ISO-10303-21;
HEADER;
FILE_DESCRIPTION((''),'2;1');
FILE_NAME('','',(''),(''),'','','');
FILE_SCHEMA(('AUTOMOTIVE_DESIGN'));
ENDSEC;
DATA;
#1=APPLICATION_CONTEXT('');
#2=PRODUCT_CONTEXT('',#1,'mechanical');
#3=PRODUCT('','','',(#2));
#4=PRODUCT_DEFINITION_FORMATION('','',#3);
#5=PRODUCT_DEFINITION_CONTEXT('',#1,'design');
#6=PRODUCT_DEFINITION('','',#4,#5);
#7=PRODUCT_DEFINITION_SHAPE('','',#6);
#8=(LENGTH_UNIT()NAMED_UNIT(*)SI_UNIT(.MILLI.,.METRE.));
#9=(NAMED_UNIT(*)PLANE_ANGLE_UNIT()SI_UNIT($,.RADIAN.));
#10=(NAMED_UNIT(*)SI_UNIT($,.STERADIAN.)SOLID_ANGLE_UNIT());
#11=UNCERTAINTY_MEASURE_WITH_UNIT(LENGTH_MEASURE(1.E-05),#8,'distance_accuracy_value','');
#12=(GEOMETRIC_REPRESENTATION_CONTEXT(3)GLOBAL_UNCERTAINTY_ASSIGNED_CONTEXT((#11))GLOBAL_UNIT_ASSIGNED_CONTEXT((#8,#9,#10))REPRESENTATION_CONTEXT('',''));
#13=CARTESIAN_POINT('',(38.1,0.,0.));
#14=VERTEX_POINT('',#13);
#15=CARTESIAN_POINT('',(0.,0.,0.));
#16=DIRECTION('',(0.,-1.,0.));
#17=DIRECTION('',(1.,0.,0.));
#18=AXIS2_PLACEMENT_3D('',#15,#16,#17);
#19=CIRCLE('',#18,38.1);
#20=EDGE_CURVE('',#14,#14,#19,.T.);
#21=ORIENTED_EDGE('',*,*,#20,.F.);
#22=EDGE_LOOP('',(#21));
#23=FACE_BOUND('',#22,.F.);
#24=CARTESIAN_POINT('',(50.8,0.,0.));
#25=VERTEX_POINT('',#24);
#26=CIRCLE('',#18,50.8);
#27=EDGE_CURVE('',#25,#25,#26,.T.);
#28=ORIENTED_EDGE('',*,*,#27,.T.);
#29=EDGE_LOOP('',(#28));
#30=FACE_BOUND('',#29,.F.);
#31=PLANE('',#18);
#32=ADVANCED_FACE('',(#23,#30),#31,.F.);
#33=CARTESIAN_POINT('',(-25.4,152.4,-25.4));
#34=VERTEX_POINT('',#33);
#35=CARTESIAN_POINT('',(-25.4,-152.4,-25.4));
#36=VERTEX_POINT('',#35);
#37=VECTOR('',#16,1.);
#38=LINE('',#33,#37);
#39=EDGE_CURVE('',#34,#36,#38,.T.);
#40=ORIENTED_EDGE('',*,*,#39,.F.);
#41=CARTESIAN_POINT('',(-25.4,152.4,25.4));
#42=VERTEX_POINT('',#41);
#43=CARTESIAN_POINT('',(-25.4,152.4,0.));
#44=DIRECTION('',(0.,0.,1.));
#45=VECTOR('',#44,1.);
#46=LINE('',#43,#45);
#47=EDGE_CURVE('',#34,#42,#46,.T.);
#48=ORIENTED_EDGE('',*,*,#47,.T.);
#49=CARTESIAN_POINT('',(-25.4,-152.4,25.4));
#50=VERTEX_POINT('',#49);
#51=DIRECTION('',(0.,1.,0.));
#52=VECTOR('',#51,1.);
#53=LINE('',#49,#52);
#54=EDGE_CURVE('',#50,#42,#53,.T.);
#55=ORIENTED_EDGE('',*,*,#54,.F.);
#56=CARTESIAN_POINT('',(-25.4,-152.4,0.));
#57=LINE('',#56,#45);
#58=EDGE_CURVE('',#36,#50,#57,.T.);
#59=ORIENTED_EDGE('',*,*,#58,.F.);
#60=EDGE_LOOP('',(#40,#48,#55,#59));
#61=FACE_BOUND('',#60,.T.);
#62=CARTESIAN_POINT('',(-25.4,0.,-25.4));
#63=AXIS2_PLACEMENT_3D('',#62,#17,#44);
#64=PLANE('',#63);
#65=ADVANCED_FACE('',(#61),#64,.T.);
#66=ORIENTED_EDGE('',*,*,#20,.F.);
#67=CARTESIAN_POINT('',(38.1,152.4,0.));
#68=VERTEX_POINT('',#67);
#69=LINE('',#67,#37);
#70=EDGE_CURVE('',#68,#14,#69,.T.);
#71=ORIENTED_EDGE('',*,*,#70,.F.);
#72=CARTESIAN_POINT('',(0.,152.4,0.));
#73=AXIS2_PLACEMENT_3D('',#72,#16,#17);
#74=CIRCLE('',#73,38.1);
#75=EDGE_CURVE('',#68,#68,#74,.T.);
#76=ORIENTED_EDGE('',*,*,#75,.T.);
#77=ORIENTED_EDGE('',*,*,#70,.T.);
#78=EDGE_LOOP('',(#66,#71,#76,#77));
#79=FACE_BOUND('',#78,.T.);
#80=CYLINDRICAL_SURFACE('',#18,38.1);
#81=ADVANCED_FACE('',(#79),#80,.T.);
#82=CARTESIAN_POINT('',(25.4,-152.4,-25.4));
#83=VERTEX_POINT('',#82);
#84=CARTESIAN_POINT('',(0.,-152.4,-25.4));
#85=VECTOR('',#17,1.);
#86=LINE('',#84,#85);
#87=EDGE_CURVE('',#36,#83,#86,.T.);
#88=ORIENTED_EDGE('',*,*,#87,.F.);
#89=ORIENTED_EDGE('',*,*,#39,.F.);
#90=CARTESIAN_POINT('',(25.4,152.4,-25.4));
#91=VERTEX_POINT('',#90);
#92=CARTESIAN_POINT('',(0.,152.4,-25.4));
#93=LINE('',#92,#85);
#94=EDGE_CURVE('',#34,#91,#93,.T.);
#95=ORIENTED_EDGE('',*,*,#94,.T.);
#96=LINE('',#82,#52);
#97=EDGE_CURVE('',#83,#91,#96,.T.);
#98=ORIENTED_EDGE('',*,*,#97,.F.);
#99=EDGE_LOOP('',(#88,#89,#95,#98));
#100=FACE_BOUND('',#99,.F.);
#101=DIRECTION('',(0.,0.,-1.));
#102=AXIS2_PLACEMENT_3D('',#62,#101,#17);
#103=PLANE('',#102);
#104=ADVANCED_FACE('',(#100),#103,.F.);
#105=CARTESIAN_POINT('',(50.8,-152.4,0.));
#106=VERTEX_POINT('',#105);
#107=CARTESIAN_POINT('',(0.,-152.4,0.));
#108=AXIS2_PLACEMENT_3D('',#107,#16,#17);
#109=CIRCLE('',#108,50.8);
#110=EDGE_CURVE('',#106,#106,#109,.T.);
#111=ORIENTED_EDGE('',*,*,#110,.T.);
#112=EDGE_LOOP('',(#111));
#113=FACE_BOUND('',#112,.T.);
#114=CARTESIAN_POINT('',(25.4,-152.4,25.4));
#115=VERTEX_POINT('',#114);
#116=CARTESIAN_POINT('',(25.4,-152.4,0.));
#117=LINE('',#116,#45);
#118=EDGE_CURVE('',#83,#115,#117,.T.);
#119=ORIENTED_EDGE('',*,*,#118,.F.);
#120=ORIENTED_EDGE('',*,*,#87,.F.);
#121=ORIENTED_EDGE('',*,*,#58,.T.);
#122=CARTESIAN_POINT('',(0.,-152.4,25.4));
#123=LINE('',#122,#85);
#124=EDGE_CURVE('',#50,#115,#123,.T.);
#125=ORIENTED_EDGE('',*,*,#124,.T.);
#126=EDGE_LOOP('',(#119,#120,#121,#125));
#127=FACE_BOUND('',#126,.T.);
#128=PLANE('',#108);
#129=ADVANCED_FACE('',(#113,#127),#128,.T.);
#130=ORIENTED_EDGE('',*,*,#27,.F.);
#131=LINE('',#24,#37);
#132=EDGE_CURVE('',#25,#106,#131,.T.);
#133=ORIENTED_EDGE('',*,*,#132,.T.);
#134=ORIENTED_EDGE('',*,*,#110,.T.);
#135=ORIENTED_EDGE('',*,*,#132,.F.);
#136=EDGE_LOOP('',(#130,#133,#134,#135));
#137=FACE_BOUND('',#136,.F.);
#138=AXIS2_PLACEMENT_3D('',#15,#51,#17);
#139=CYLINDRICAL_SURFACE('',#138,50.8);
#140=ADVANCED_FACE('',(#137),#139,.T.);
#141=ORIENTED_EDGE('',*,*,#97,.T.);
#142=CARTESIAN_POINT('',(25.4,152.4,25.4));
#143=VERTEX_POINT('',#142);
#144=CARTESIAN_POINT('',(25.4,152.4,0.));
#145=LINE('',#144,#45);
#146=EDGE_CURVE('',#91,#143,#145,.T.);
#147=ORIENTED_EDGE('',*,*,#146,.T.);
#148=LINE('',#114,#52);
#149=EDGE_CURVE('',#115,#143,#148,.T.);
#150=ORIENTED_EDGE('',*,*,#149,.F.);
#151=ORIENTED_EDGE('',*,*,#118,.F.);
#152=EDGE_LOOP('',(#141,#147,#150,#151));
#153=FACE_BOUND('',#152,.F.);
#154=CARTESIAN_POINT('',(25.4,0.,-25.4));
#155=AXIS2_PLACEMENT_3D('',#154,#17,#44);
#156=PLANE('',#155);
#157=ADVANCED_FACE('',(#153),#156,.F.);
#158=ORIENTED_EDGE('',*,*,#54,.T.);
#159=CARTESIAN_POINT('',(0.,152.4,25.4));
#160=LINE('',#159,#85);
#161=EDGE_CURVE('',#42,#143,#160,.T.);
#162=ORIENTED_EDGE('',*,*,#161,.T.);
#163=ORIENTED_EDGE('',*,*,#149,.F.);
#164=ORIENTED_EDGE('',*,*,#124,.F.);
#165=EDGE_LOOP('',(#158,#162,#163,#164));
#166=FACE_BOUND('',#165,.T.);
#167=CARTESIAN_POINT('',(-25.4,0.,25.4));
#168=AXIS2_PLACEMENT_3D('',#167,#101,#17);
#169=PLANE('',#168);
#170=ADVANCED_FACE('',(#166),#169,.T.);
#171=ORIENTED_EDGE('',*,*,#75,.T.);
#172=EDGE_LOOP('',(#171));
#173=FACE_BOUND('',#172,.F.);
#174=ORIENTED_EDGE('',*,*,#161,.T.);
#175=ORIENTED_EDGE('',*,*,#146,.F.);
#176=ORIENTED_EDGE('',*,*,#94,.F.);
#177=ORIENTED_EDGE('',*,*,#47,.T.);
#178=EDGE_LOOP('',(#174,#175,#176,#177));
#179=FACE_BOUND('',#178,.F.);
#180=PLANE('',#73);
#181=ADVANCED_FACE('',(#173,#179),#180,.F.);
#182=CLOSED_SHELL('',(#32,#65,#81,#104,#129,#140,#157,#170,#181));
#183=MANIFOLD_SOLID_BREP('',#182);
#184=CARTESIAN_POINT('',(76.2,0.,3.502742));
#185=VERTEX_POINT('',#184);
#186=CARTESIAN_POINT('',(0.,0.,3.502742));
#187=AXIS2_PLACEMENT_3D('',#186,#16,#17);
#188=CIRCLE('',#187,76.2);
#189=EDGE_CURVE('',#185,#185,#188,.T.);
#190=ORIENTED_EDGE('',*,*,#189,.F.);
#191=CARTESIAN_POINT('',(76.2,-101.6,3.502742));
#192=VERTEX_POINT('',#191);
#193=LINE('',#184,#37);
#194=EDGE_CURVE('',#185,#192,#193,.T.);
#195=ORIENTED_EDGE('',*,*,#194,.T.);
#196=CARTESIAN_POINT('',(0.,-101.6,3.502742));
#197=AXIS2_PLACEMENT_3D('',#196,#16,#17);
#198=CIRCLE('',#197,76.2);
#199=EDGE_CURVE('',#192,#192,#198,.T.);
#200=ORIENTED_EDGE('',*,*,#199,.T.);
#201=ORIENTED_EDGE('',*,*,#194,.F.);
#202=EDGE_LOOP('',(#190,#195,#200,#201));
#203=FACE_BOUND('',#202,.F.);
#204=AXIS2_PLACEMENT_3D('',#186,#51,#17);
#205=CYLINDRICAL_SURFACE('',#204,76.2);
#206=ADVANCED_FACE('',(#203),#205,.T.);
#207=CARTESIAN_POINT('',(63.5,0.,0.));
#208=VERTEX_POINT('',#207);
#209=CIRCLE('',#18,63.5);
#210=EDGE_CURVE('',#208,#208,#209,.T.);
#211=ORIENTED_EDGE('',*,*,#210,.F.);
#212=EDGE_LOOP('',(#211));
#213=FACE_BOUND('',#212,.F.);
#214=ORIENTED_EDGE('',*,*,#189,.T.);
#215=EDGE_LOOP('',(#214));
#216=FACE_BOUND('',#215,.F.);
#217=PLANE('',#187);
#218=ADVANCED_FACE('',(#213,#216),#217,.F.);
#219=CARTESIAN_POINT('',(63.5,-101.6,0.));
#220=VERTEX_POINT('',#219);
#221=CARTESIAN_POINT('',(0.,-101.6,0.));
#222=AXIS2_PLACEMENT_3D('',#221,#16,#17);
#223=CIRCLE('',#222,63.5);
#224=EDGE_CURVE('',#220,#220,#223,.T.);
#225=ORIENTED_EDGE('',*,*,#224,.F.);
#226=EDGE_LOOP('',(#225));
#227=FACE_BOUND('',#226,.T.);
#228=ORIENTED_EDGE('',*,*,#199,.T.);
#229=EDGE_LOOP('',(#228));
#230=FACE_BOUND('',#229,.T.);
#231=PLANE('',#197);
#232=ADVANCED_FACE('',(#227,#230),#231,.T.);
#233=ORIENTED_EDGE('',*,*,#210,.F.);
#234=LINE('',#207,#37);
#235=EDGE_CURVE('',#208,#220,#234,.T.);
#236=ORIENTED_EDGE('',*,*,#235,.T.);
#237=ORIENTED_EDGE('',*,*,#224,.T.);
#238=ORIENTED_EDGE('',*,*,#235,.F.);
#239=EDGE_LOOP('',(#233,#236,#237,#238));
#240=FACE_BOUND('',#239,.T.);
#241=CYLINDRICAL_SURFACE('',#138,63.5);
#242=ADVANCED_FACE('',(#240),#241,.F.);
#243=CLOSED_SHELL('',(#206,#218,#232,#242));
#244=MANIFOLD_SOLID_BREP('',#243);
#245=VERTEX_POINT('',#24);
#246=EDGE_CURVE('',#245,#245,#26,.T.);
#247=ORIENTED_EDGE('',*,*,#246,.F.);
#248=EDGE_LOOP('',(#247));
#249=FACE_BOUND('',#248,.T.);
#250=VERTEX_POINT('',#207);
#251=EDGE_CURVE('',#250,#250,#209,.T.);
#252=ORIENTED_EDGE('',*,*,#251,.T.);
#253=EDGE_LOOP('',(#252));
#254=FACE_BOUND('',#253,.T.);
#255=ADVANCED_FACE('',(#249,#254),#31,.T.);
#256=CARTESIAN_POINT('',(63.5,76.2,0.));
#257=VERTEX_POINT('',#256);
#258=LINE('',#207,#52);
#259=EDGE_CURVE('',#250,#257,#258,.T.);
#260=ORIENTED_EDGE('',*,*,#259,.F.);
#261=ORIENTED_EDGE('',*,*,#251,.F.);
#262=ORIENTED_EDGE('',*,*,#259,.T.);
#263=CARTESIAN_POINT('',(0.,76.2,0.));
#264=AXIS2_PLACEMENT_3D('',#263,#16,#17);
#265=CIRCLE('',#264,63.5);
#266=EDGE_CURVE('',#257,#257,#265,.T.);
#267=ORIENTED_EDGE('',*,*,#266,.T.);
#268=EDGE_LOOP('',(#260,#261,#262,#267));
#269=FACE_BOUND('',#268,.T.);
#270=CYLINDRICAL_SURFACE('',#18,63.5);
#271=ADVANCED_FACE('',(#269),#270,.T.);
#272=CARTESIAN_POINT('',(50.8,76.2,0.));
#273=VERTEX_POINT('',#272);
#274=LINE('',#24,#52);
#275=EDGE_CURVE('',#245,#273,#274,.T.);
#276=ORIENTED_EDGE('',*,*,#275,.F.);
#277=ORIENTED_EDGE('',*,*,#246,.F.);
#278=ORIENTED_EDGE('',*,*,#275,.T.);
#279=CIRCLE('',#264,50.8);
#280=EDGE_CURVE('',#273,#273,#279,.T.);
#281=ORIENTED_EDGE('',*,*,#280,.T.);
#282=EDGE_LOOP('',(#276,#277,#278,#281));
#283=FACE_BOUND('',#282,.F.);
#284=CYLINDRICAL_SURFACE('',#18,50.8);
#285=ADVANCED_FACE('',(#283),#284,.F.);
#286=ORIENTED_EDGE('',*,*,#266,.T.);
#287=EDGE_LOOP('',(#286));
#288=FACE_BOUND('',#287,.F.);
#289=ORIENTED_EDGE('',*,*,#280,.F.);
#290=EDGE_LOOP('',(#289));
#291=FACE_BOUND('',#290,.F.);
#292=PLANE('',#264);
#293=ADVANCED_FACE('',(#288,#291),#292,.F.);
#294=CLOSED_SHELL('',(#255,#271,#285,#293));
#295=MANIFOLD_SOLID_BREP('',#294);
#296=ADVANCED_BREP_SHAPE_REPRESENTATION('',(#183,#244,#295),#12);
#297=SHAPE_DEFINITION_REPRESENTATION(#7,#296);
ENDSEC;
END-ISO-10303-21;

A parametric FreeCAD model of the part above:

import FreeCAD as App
import Part
import Sketcher
Q = App.Units.Quantity


def add_polygon(sketch, points):
    """Adds a closed chain of lines whose ends are joined by coincident constraints."""
    first, n = sketch.GeometryCount, len(points)
    for a, b in zip(points, points[1:] + points[:1]):
        sketch.addGeometry(Part.LineSegment(App.Vector(*a, 0), App.Vector(*b, 0)), False)
    for i in range(n):
        sketch.addConstraint(Sketcher.Constraint("Coincident", first + i, 2, first + (i + 1) % n, 1))

doc = App.newDocument("Part")
body = doc.addObject("PartDesign::Body", "Body")
body.AllowCompound = True

sketch1 = body.newObject("Sketcher::SketchObject", "Sketch")
sketch1.AttachmentSupport = (doc.getObject("XZ_Plane"), [""])
sketch1.MapMode = "FlatFace"
sketch1.addGeometry([
    Part.Circle(App.Vector(0, 3.502742, 0), App.Vector(0, 0, 1), 76.2),
    Part.Circle(App.Vector(0, 0, 0), App.Vector(0, 0, 1), 63.5),
], False)
sketch1.addConstraint([
    Sketcher.Constraint("Coincident", 1, 3, -1, 1),
    Sketcher.Constraint("PointOnObject", 0, 3, -2),
    Sketcher.Constraint("Diameter", 0, Q("6 in")),
    Sketcher.Constraint("Diameter", 1, Q("5 in")),
    Sketcher.Constraint("DistanceY", -1, 1, 0, 3, Q("3.502742 mm")),
])
pad1 = body.newObject("PartDesign::Pad", "Pad")
pad1.Profile = sketch1
pad1.Length = Q("4 in")

sketch2 = body.newObject("Sketcher::SketchObject", "Sketch001")
sketch2.AttachmentSupport = (doc.getObject("XZ_Plane"), [""])
sketch2.MapMode = "FlatFace"
sketch2.addGeometry([
    Part.Circle(App.Vector(0, 0, 0), App.Vector(0, 0, 1), 63.5),
    Part.Circle(App.Vector(0, 0, 0), App.Vector(0, 0, 1), 50.8),
], False)
sketch2.addConstraint([
    Sketcher.Constraint("Coincident", 0, 3, -1, 1),
    Sketcher.Constraint("Coincident", 1, 3, -1, 1),
    Sketcher.Constraint("Diameter", 0, Q("5 in")),
    Sketcher.Constraint("Diameter", 1, Q("4 in")),
])
pad2 = body.newObject("PartDesign::Pad", "Pad001")
pad2.Profile = sketch2
pad2.Length = Q("3 in")
pad2.Reversed = True
body2 = doc.addObject("PartDesign::Body", "Body001")

sketch3 = body2.newObject("Sketcher::SketchObject", "Sketch002")
sketch3.AttachmentSupport = (doc.getObject("XZ_Plane001"), [""])
sketch3.MapMode = "FlatFace"
sketch3.addGeometry([
    Part.Circle(App.Vector(0, 0, 0), App.Vector(0, 0, 1), 50.8),
    Part.Circle(App.Vector(0, 0, 0), App.Vector(0, 0, 1), 38.1),
], False)
sketch3.addConstraint([
    Sketcher.Constraint("Coincident", 0, 3, -1, 1),
    Sketcher.Constraint("Coincident", 1, 3, -1, 1),
    Sketcher.Constraint("Diameter", 0, Q("4 in")),
    Sketcher.Constraint("Diameter", 1, Q("3 in")),
])
pad3 = body2.newObject("PartDesign::Pad", "Pad002")
pad3.Profile = sketch3
pad3.Length = Q("6 in")

sketch4 = body2.newObject("Sketcher::SketchObject", "Sketch003")
sketch4.AttachmentSupport = (doc.getObject("XZ_Plane001"), [""])
sketch4.MapMode = "FlatFace"
sketch4.addGeometry(Part.Circle(App.Vector(0, 0, 0), App.Vector(0, 0, 1), 38.1), False)
add_polygon(sketch4, [(25.4, -25.4), (-25.4, -25.4), (-25.4, 25.4), (25.4, 25.4)])
sketch4.addConstraint([
    Sketcher.Constraint("Horizontal", 1),
    Sketcher.Constraint("Vertical", 2),
    Sketcher.Constraint("Horizontal", 3),
    Sketcher.Constraint("Vertical", 4),
    Sketcher.Constraint("Coincident", 0, 3, -1, 1),
    Sketcher.Constraint("Symmetric", 1, 2, 3, 2, -1, 1),
    Sketcher.Constraint("Equal", 3, 2),
    Sketcher.Constraint("Diameter", 0, Q("3 in")),
    Sketcher.Constraint("DistanceX", 1, 2, 1, 1, Q("2 in")),
])
pad4 = body2.newObject("PartDesign::Pad", "Pad003")
pad4.Profile = sketch4
pad4.Length = Q("12 in")
pad4.Midplane = True

doc.recompute()
